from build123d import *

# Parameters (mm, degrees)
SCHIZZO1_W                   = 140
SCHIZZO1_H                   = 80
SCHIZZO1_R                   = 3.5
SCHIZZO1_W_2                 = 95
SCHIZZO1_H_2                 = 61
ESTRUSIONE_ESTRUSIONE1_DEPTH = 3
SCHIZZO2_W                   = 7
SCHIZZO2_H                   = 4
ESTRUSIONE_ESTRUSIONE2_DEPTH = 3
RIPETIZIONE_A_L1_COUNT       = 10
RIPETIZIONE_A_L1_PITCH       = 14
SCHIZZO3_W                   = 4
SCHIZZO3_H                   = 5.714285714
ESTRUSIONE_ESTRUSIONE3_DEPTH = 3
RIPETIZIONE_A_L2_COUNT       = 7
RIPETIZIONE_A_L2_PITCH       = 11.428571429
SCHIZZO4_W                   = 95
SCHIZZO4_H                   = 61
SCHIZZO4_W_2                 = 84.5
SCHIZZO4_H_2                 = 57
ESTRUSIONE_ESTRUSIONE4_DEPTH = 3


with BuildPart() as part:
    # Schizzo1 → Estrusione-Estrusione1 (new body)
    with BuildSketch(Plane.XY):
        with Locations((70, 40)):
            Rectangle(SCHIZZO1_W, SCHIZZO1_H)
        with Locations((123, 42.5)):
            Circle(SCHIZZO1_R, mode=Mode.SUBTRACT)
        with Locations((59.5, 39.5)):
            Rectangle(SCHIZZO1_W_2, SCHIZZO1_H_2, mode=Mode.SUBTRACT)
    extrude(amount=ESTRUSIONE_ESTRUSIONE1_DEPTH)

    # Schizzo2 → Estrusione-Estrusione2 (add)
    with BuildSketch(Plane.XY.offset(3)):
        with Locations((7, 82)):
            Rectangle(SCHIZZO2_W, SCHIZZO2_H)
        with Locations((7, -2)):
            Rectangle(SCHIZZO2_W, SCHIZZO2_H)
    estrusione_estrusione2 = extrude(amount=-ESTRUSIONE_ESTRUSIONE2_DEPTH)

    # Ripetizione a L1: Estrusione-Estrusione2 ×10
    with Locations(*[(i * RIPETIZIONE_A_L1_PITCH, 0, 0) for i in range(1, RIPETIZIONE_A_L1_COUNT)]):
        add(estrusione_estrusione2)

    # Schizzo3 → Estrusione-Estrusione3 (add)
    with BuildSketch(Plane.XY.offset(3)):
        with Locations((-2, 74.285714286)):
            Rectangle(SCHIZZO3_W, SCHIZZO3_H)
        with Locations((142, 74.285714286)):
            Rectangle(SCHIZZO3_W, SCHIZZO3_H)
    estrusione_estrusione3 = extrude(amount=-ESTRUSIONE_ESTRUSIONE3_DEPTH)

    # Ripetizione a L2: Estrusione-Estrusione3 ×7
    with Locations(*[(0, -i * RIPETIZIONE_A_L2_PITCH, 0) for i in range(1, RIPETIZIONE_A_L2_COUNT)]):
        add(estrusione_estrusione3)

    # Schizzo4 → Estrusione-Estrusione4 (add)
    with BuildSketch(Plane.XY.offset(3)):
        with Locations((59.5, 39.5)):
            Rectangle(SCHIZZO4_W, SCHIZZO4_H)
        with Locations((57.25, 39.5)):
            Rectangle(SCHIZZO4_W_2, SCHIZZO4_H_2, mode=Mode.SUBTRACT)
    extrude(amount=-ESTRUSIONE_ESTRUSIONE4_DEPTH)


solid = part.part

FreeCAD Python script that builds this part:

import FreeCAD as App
import Part
import Sketcher
Q = App.Units.Quantity


def add_polygon(sketch, points):
    """Adds a closed chain of lines whose ends are joined by coincident constraints."""
    first, n = sketch.GeometryCount, len(points)
    for a, b in zip(points, points[1:] + points[:1]):
        sketch.addGeometry(Part.LineSegment(App.Vector(*a, 0), App.Vector(*b, 0)), False)
    for i in range(n):
        sketch.addConstraint(Sketcher.Constraint("Coincident", first + i, 2, first + (i + 1) % n, 1))

doc = App.newDocument("Part")
params = doc.addObject("Spreadsheet::Sheet", "Params")
for row, (alias, value) in enumerate([
    ("sketch1_diameter", "7 mm"),
    ("sketch1_width", "140 mm"),
    ("sketch1_width2", "95 mm"),
    ("sketch1_height", "80 mm"),
    ("sketch1_height2", "61 mm"),
    ("pad1_length", "3 mm"),
    ("sketch2_width", "7 mm"),
    ("sketch2_height", "4 mm"),
    ("pad2_length", "3 mm"),
    ("linearpattern_pitch", "14 mm"),
    ("sketch3_width", "4 mm"),
    ("pad3_length", "3 mm"),
    ("linearpattern2_pitch", "11.428571 mm"),
    ("sketch4_width", "95 mm"),
    ("sketch4_height", "61 mm"),
    ("sketch4_height2", "57 mm"),
    ("sketch4_width2", "84.5 mm"),
    ("pad4_length", "3 mm"),
], start=1):
    params.set(f"A{row}", alias)
    params.set(f"B{row}", "=" + value)
    params.setAlias(f"B{row}", alias)

body = doc.addObject("PartDesign::Body", "Body")

# Sketch on XY plane
sketch1 = doc.addObject("Sketcher::SketchObject", "Sketch")
body.addObject(sketch1)
sketch1.AttachmentSupport = (doc.XY_Plane, [""])
sketch1.MapMode = "FlatFace"
add_polygon(sketch1, [(0, 80), (0, 0), (140, 0), (140, 80)])  # lines 0-3
add_polygon(sketch1, [(107, 9), (12, 9), (12, 70), (107, 70)])  # lines 4-7
sketch1.addGeometry(Part.Circle(App.Vector(123, 42.5, 0), App.Vector(0, 0, 1), 3.5), False)  # 8
sketch1.addConstraint(Sketcher.Constraint("Vertical", 0))
sketch1.addConstraint(Sketcher.Constraint("Horizontal", 1))
sketch1.addConstraint(Sketcher.Constraint("Vertical", 2))
sketch1.addConstraint(Sketcher.Constraint("Horizontal", 3))
sketch1.addConstraint(Sketcher.Constraint("Horizontal", 4))
sketch1.addConstraint(Sketcher.Constraint("Vertical", 5))
sketch1.addConstraint(Sketcher.Constraint("Horizontal", 6))
sketch1.addConstraint(Sketcher.Constraint("Vertical", 7))
sketch1.addConstraint(Sketcher.Constraint("Coincident", 0, 2, -1, 1))
sketch1.addConstraint(Sketcher.Constraint("Diameter", 8, Q("7 mm")))
sketch1.addConstraint(Sketcher.Constraint("DistanceX", 1, 1, 1, 2, Q("140 mm")))
sketch1.addConstraint(Sketcher.Constraint("DistanceX", 4, 2, 4, 1, Q("95 mm")))
sketch1.addConstraint(Sketcher.Constraint("DistanceY", 0, 2, 0, 1, Q("80 mm")))
sketch1.addConstraint(Sketcher.Constraint("DistanceY", 5, 1, 5, 2, Q("61 mm")))
sketch1.addConstraint(Sketcher.Constraint("DistanceX", -1, 1, 8, 3, Q("123 mm")))
sketch1.addConstraint(Sketcher.Constraint("DistanceX", -1, 1, 4, 2, Q("12 mm")))
sketch1.addConstraint(Sketcher.Constraint("DistanceY", -1, 1, 4, 2, Q("9 mm")))
sketch1.addConstraint(Sketcher.Constraint("DistanceY", -1, 1, 8, 3, Q("42.5 mm")))
sketch1.setExpression("Constraints[17]", "Params.sketch1_diameter")
sketch1.setExpression("Constraints[18]", "Params.sketch1_width")
sketch1.setExpression("Constraints[19]", "Params.sketch1_width2")
sketch1.setExpression("Constraints[20]", "Params.sketch1_height")
sketch1.setExpression("Constraints[21]", "Params.sketch1_height2")
pad1 = doc.addObject("PartDesign::Pad", "Pad")
body.addObject(pad1)
pad1.Profile = sketch1
pad1.setExpression("Length", "Params.pad1_length")

# Sketch on XY plane
sketch2 = doc.addObject("Sketcher::SketchObject", "Sketch001")
body.addObject(sketch2)
sketch2.AttachmentSupport = (doc.XY_Plane, [""])
sketch2.MapMode = "FlatFace"
sketch2.AttachmentOffset = App.Placement(App.Vector(0, 0, 3), App.Rotation())
add_polygon(sketch2, [(3.5, 84), (3.5, 80), (10.5, 80), (10.5, 84)])  # lines 0-3
add_polygon(sketch2, [(3.5, 0), (3.5, -4), (10.5, -4), (10.5, 0)])  # lines 4-7
sketch2.addConstraint(Sketcher.Constraint("Vertical", 0))
sketch2.addConstraint(Sketcher.Constraint("Horizontal", 1))
sketch2.addConstraint(Sketcher.Constraint("Vertical", 2))
sketch2.addConstraint(Sketcher.Constraint("Horizontal", 3))
sketch2.addConstraint(Sketcher.Constraint("Vertical", 4))
sketch2.addConstraint(Sketcher.Constraint("Horizontal", 5))
sketch2.addConstraint(Sketcher.Constraint("Vertical", 6))
sketch2.addConstraint(Sketcher.Constraint("Horizontal", 7))
sketch2.addConstraint(Sketcher.Constraint("PointOnObject", 6, 2, -1))
sketch2.addConstraint(Sketcher.Constraint("Vertical", 3, 2, 4, 2))
sketch2.addConstraint(Sketcher.Constraint("Vertical", 2, 2, 5, 2))
sketch2.addConstraint(Sketcher.Constraint("Equal", 2, 4))
sketch2.addConstraint(Sketcher.Constraint("DistanceX", 1, 1, 1, 2, Q("7 mm")))
sketch2.addConstraint(Sketcher.Constraint("DistanceY", 0, 2, 0, 1, Q("4 mm")))
sketch2.addConstraint(Sketcher.Constraint("DistanceY", -1, 1, 0, 2, Q("80 mm")))
sketch2.addConstraint(Sketcher.Constraint("DistanceX", -1, 1, 0, 2, Q("3.5 mm")))
sketch2.setExpression("Constraints[20]", "Params.sketch2_width")
sketch2.setExpression("Constraints[21]", "Params.sketch2_height")
pad2 = doc.addObject("PartDesign::Pad", "Pad001")
body.addObject(pad2)
pad2.Profile = sketch2
pad2.setExpression("Length", "Params.pad2_length")
pad2.Reversed = True
doc.recompute()

linearpattern = doc.addObject("PartDesign::LinearPattern", "LinearPattern")
body.addObject(linearpattern)
linearpattern.Originals = [pad2]
linearpattern.Direction = (doc.X_Axis, [""])
linearpattern.Mode = "offset"
linearpattern.setExpression("Offset", "Params.linearpattern_pitch")
linearpattern.Occurrences = 10
body.Tip = linearpattern

# Sketch on XY plane
sketch3 = doc.addObject("Sketcher::SketchObject", "Sketch002")
body.addObject(sketch3)
sketch3.AttachmentSupport = (doc.XY_Plane, [""])
sketch3.MapMode = "FlatFace"
sketch3.AttachmentOffset = App.Placement(App.Vector(0, 0, 3), App.Rotation())
add_polygon(sketch3, [(-4, 77.142857), (-4, 71.428571), (0, 71.428571), (0, 77.142857)])  # lines 0-3
add_polygon(sketch3, [(140, 77.142857), (140, 71.428571), (144, 71.428571), (144, 77.142857)])  # lines 4-7
sketch3.addConstraint(Sketcher.Constraint("Vertical", 0))
sketch3.addConstraint(Sketcher.Constraint("Horizontal", 1))
sketch3.addConstraint(Sketcher.Constraint("Vertical", 2))
sketch3.addConstraint(Sketcher.Constraint("Horizontal", 3))
sketch3.addConstraint(Sketcher.Constraint("Vertical", 4))
sketch3.addConstraint(Sketcher.Constraint("Horizontal", 5))
sketch3.addConstraint(Sketcher.Constraint("Vertical", 6))
sketch3.addConstraint(Sketcher.Constraint("Horizontal", 7))
sketch3.addConstraint(Sketcher.Constraint("PointOnObject", 1, 2, -2))
sketch3.addConstraint(Sketcher.Constraint("Horizontal", 1, 2, 4, 2))
sketch3.addConstraint(Sketcher.Constraint("Horizontal", 3, 2, 6, 2))
sketch3.addConstraint(Sketcher.Constraint("Equal", 3, 5))
sketch3.addConstraint(Sketcher.Constraint("DistanceX", 1, 1, 1, 2, Q("4 mm")))
sketch3.addConstraint(Sketcher.Constraint("DistanceX", -1, 1, 4, 2, Q("140 mm")))
sketch3.addConstraint(Sketcher.Constraint("DistanceY", 0, 2, 0, 1, Q("5.714286 mm")))
sketch3.addConstraint(Sketcher.Constraint("DistanceY", -1, 1, 0, 2, Q("71.428571 mm")))
sketch3.setExpression("Constraints[20]", "Params.sketch3_width")
pad3 = doc.addObject("PartDesign::Pad", "Pad002")
body.addObject(pad3)
pad3.Profile = sketch3
pad3.setExpression("Length", "Params.pad3_length")
pad3.Reversed = True
doc.recompute()

linearpattern2 = doc.addObject("PartDesign::LinearPattern", "LinearPattern001")
body.addObject(linearpattern2)
linearpattern2.Originals = [pad3]
linearpattern2.Direction = (doc.Y_Axis, [""])
linearpattern2.Mode = "offset"
linearpattern2.setExpression("Offset", "Params.linearpattern2_pitch")
linearpattern2.Occurrences = 7
linearpattern2.Reversed = True
body.Tip = linearpattern2

# Sketch on XY plane
sketch4 = doc.addObject("Sketcher::SketchObject", "Sketch003")
body.addObject(sketch4)
sketch4.AttachmentSupport = (doc.XY_Plane, [""])
sketch4.MapMode = "FlatFace"
sketch4.AttachmentOffset = App.Placement(App.Vector(0, 0, 3), App.Rotation())
add_polygon(sketch4, [(12, 70), (12, 9), (107, 9), (107, 70)])  # lines 0-3
add_polygon(sketch4, [(99.5, 11), (15, 11), (15, 68), (99.5, 68)])  # lines 4-7
sketch4.addConstraint(Sketcher.Constraint("Vertical", 0))
sketch4.addConstraint(Sketcher.Constraint("Horizontal", 1))
sketch4.addConstraint(Sketcher.Constraint("Vertical", 2))
sketch4.addConstraint(Sketcher.Constraint("Horizontal", 3))
sketch4.addConstraint(Sketcher.Constraint("Horizontal", 4))
sketch4.addConstraint(Sketcher.Constraint("Vertical", 5))
sketch4.addConstraint(Sketcher.Constraint("Horizontal", 6))
sketch4.addConstraint(Sketcher.Constraint("Vertical", 7))
sketch4.addConstraint(Sketcher.Constraint("DistanceX", 1, 1, 1, 2, Q("95 mm")))
sketch4.addConstraint(Sketcher.Constraint("DistanceY", 0, 2, 0, 1, Q("61 mm")))
sketch4.addConstraint(Sketcher.Constraint("DistanceY", 5, 1, 5, 2, Q("57 mm")))
sketch4.addConstraint(Sketcher.Constraint("DistanceX", 4, 2, 4, 1, Q("84.5 mm")))
sketch4.addConstraint(Sketcher.Constraint("DistanceX", -1, 1, 0, 2, Q("12 mm")))
sketch4.addConstraint(Sketcher.Constraint("DistanceY", -1, 1, 0, 2, Q("9 mm")))
sketch4.addConstraint(Sketcher.Constraint("DistanceX", -1, 1, 4, 2, Q("15 mm")))
sketch4.addConstraint(Sketcher.Constraint("DistanceY", -1, 1, 4, 2, Q("11 mm")))
sketch4.setExpression("Constraints[16]", "Params.sketch4_width")
sketch4.setExpression("Constraints[17]", "Params.sketch4_height")
sketch4.setExpression("Constraints[18]", "Params.sketch4_height2")
sketch4.setExpression("Constraints[19]", "Params.sketch4_width2")
pad4 = doc.addObject("PartDesign::Pad", "Pad003")
body.addObject(pad4)
pad4.Profile = sketch4
pad4.setExpression("Length", "Params.pad4_length")
pad4.Reversed = True

doc.recompute()
